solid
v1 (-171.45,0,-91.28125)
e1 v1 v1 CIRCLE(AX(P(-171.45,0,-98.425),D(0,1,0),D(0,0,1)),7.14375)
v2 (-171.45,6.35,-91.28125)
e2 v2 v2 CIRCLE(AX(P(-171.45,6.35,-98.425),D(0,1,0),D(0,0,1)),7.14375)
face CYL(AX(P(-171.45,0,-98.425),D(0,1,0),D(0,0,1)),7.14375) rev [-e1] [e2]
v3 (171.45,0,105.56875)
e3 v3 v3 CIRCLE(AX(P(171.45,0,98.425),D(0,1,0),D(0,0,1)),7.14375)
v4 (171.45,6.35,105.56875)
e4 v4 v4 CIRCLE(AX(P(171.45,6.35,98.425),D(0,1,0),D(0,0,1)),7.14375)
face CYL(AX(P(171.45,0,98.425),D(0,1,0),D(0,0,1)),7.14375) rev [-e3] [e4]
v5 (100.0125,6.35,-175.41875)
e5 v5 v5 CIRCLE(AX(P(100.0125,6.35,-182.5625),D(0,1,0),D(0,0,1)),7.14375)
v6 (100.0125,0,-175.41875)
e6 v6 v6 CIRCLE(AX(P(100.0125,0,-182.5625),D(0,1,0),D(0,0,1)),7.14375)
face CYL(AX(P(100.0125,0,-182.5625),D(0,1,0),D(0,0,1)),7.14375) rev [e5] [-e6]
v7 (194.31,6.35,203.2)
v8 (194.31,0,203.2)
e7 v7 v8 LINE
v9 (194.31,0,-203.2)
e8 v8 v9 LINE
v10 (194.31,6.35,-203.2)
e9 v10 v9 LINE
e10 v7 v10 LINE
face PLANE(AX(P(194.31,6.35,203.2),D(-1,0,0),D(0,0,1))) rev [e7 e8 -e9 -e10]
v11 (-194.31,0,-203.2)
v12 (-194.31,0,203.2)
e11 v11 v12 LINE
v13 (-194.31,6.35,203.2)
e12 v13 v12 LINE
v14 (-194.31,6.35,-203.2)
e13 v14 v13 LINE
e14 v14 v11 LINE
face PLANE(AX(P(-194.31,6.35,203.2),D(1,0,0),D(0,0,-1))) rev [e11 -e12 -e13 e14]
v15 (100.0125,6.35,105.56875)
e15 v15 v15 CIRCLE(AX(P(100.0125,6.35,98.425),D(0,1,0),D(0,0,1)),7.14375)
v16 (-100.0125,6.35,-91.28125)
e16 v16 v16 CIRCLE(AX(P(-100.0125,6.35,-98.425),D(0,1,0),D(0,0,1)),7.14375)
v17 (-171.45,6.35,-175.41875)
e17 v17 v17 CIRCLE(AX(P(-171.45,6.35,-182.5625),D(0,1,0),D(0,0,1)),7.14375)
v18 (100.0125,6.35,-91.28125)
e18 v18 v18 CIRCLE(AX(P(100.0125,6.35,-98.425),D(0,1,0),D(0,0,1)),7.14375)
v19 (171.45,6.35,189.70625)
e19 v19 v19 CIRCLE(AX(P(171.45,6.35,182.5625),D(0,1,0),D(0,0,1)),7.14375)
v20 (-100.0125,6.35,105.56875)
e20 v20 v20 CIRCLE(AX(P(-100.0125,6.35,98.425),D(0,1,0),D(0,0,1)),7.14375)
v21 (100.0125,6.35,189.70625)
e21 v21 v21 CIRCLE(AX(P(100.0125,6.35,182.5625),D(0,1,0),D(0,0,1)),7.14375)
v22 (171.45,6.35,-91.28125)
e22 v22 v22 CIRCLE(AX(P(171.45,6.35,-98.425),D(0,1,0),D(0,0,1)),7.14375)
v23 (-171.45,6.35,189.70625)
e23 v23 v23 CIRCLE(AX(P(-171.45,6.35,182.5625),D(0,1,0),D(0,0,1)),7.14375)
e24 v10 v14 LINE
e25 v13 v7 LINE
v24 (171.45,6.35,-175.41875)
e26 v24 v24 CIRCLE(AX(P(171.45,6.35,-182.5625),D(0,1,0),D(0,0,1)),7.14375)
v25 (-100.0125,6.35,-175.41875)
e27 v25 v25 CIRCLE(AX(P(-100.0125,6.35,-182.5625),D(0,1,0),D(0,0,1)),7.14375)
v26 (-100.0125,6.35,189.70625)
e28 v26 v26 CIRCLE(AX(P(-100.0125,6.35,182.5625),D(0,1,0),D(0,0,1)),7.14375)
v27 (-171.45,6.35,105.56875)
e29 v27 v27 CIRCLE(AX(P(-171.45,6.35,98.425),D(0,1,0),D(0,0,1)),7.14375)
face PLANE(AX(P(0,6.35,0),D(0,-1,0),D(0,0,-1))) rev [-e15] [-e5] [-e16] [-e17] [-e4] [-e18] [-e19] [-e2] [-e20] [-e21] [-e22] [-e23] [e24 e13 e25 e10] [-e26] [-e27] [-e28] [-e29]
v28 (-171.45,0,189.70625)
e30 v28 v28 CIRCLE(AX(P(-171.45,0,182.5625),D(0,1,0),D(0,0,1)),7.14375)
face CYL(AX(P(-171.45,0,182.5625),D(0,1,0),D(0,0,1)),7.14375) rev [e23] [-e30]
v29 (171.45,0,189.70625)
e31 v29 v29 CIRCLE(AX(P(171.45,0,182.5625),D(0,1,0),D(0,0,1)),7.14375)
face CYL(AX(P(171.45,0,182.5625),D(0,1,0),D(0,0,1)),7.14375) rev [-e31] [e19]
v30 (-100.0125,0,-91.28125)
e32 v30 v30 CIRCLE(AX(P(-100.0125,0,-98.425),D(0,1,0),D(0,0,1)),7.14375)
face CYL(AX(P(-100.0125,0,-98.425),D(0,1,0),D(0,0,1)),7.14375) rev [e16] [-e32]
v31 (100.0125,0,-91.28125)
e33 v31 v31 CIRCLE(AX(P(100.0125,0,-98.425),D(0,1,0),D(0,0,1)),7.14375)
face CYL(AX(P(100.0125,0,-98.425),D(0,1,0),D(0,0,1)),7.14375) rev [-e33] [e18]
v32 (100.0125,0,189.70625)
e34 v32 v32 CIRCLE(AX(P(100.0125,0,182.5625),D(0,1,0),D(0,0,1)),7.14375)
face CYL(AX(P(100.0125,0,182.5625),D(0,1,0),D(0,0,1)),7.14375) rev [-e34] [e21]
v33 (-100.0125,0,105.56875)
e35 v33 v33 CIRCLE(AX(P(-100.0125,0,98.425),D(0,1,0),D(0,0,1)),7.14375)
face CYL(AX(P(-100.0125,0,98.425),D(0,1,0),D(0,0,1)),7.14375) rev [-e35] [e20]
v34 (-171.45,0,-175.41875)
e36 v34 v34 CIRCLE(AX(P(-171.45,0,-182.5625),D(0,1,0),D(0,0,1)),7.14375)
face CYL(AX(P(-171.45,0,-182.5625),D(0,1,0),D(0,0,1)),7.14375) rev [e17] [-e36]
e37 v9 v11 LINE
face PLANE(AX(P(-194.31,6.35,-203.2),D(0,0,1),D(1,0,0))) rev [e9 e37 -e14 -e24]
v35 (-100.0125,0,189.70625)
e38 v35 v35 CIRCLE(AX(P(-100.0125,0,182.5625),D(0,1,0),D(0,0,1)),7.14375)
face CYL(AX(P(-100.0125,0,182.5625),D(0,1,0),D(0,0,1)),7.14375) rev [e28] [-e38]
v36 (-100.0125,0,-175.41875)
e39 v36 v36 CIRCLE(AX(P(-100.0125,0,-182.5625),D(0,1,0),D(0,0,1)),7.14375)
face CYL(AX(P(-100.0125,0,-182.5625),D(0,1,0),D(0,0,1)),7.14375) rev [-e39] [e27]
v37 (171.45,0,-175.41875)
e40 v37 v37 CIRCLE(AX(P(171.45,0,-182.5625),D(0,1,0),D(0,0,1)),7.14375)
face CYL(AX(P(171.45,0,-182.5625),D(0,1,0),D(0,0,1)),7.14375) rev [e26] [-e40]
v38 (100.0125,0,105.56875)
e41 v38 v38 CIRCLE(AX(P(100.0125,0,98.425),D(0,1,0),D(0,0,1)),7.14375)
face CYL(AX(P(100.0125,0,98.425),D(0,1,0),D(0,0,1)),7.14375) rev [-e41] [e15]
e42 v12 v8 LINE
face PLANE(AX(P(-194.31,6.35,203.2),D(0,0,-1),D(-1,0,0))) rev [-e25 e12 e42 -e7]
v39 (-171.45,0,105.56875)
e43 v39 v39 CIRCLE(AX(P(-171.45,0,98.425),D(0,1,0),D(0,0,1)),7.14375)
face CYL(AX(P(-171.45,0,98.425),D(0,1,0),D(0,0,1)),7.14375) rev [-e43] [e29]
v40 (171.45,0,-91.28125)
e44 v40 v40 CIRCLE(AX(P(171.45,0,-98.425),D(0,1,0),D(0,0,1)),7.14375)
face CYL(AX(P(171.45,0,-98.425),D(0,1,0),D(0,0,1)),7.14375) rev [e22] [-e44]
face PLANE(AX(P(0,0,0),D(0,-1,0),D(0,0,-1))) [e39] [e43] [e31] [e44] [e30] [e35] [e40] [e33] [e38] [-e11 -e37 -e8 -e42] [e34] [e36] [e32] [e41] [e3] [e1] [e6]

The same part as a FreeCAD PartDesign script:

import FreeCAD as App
import Part
import Sketcher
from FreeCAD import Vector
Q = App.Units.Quantity


def add_polygon(sketch, points):
    """Adds a closed chain of lines whose ends are joined by coincident constraints."""
    first, n = sketch.GeometryCount, len(points)
    for a, b in zip(points, points[1:] + points[:1]):
        sketch.addGeometry(Part.LineSegment(App.Vector(*a, 0), App.Vector(*b, 0)), False)
    for i in range(n):
        sketch.addConstraint(Sketcher.Constraint("Coincident", first + i, 2, first + (i + 1) % n, 1))

doc = App.newDocument("Part")
body = doc.addObject("PartDesign::Body", "Body")

# Sketch on XZ plane
sketch1 = body.newObject("Sketcher::SketchObject", "Sketch")
sketch1.AttachmentSupport = (doc.getObject("XZ_Plane"), [""])
sketch1.MapMode = "FlatFace"
add_polygon(sketch1, [(-194.31, -203.2), (-194.31, 203.2), (194.31, 203.2), (194.31, -203.2)])  # lines 0-3
sketch1.addConstraint([
    Sketcher.Constraint("Vertical", 0),
    Sketcher.Constraint("Horizontal", 1),
    Sketcher.Constraint("Vertical", 2),
    Sketcher.Constraint("Horizontal", 3),
    Sketcher.Constraint("Symmetric", 0, 2, 2, 2, -1, 1),
    Sketcher.Constraint("DistanceY", 0, 1, 0, 2, Q("16 in")),
    Sketcher.Constraint("DistanceX", 1, 1, 1, 2, Q("15.3 in")),
])
pad1 = body.newObject("PartDesign::Pad", "Pad")
pad1.Profile = sketch1
pad1.Length = Q("0.25 in")
pad1.Reversed = True

# Sketch on XZ plane
sketch2 = body.newObject("Sketcher::SketchObject", "Sketch001")
sketch2.AttachmentSupport = (doc.getObject("XZ_Plane"), [""])
sketch2.MapMode = "FlatFace"
sketch2.AttachmentOffset = App.Placement(Vector(0, 0, -0.25 * 25.4), App.Rotation())
sketch2.addGeometry([
    Part.Circle(Vector(-171.45, 182.5625, 0), Vector(0, 0, 1), 7.14375),  # 0
    Part.Circle(Vector(-100.0125, -182.5625, 0), Vector(0, 0, 1), 7.14375),  # 1
    Part.Circle(Vector(100.0125, 182.5625, 0), Vector(0, 0, 1), 7.14375),  # 2
    Part.Circle(Vector(171.45, 182.5625, 0), Vector(0, 0, 1), 7.14375),  # 3
    Part.Circle(Vector(-171.45, -182.5625, 0), Vector(0, 0, 1), 7.14375),  # 4
    Part.Circle(Vector(-171.45, -98.425, 0), Vector(0, 0, 1), 7.14375),  # 5
    Part.Circle(Vector(100.0125, -182.5625, 0), Vector(0, 0, 1), 7.14375),  # 6
    Part.Circle(Vector(171.45, -182.5625, 0), Vector(0, 0, 1), 7.14375),  # 7
    Part.Circle(Vector(-100.0125, 182.5625, 0), Vector(0, 0, 1), 7.14375),  # 8
    Part.Circle(Vector(-171.45, 98.425, 0), Vector(0, 0, 1), 7.14375),  # 9
    Part.Circle(Vector(-100.0125, 98.425, 0), Vector(0, 0, 1), 7.14375),  # 10
    Part.Circle(Vector(-100.0125, -98.425, 0), Vector(0, 0, 1), 7.14375),  # 11
    Part.Circle(Vector(100.0125, -98.425, 0), Vector(0, 0, 1), 7.14375),  # 12
    Part.Circle(Vector(171.45, -98.425, 0), Vector(0, 0, 1), 7.14375),  # 13
    Part.Circle(Vector(100.0125, 98.425, 0), Vector(0, 0, 1), 7.14375),  # 14
    Part.Circle(Vector(171.45, 98.425, 0), Vector(0, 0, 1), 7.14375),  # 15
], False)
sketch2.addConstraint([
    Sketcher.Constraint("Equal", 0, 1),
    Sketcher.Constraint("Equal", 1, 2),
    Sketcher.Constraint("Equal", 2, 3),
    Sketcher.Constraint("Equal", 3, 4),
    Sketcher.Constraint("Equal", 4, 5),
    Sketcher.Constraint("Equal", 5, 6),
    Sketcher.Constraint("Equal", 6, 7),
    Sketcher.Constraint("Equal", 7, 8),
    Sketcher.Constraint("Equal", 8, 9),
    Sketcher.Constraint("Equal", 9, 10),
    Sketcher.Constraint("Equal", 10, 11),
    Sketcher.Constraint("Equal", 11, 12),
    Sketcher.Constraint("Equal", 12, 13),
    Sketcher.Constraint("Equal", 13, 14),
    Sketcher.Constraint("Equal", 14, 15),
    Sketcher.Constraint("Symmetric", 1, 3, 2, 3, -1, 1),
    Sketcher.Constraint("Symmetric", 3, 3, 4, 3, -1, 1),
    Sketcher.Constraint("Symmetric", 0, 3, 7, 3, -1, 1),
    Sketcher.Constraint("Symmetric", 6, 3, 8, 3, -1, 1),
    Sketcher.Constraint("Symmetric", 10, 3, 12, 3, -1, 1),
    Sketcher.Constraint("Symmetric", 9, 3, 13, 3, -1, 1),
    Sketcher.Constraint("Symmetric", 11, 3, 14, 3, -1, 1),
    Sketcher.Constraint("Symmetric", 5, 3, 15, 3, -1, 1),
    Sketcher.Constraint("Symmetric", 0, 3, 3, 3, -2),
    Sketcher.Constraint("Symmetric", 1, 3, 6, 3, -2),
    Sketcher.Constraint("Symmetric", 11, 3, 12, 3, -2),
    Sketcher.Constraint("Symmetric", 5, 3, 13, 3, -2),
    Sketcher.Constraint("Horizontal", 0, 3, 2, 3),
    Sketcher.Constraint("Horizontal", 9, 3, 10, 3),
    Sketcher.Constraint("Vertical", 4, 3, 5, 3),
    Sketcher.Constraint("Vertical", 8, 3, 10, 3),
    Sketcher.Constraint("Diameter", 0, Q("0.5625 in")),
    Sketcher.Constraint("DistanceX", 0, 3, 3, 3, Q("13.5 in")),
    Sketcher.Constraint("DistanceY", 5, 3, 9, 3, Q("7.75 in")),
    Sketcher.Constraint("DistanceY", -1, 1, 0, 3, Q("7.1875 in")),
    Sketcher.Constraint("DistanceX", 1, 3, -1, 1, Q("3.9375 in")),
])
pocket1 = body.newObject("PartDesign::Pocket", "Pocket")
pocket1.Profile = sketch2
pocket1.Type = "ThroughAll"
pocket1.Reversed = True

doc.recompute()
